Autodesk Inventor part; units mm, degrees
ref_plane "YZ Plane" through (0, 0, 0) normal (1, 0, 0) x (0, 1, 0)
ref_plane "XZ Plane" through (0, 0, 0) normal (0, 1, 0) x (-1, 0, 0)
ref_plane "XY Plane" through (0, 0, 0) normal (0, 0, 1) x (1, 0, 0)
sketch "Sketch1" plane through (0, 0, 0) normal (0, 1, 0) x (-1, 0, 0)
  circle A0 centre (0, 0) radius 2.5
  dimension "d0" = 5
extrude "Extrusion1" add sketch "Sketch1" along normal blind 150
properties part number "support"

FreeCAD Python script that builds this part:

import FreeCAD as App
import Part
import Sketcher

V = App.Vector
Q = App.Units.Quantity

doc = App.newDocument("Part")
params = doc.addObject("Spreadsheet::Sheet", "Params")
for row, (alias, value) in enumerate([
    ("sketch1_diameter", "5 mm"),
    ("pad1_length", "150 mm"),
], start=1):
    params.set(f"A{row}", alias)
    params.set(f"B{row}", "=" + value)
    params.setAlias(f"B{row}", alias)

body = doc.addObject("PartDesign::Body", "Body")

sketch1 = doc.addObject("Sketcher::SketchObject", "Sketch")
body.addObject(sketch1)
sketch1.AttachmentSupport = (doc.XZ_Plane, [""])
sketch1.MapMode = "FlatFace"
sketch1.addGeometry(Part.Circle(V(0, 0, 0), V(0, 0, 1), 2.5), False)
sketch1.addConstraint([
    Sketcher.Constraint("Coincident", 0, 3, -1, 1),
    Sketcher.Constraint("Diameter", 0, Q("5 mm")),
])
sketch1.setExpression("Constraints[1]", "Params.sketch1_diameter")
pad1 = doc.addObject("PartDesign::Pad", "Pad")
body.addObject(pad1)
pad1.Profile = sketch1
pad1.setExpression("Length", "Params.pad1_length")
pad1.Reversed = True

doc.recompute()
